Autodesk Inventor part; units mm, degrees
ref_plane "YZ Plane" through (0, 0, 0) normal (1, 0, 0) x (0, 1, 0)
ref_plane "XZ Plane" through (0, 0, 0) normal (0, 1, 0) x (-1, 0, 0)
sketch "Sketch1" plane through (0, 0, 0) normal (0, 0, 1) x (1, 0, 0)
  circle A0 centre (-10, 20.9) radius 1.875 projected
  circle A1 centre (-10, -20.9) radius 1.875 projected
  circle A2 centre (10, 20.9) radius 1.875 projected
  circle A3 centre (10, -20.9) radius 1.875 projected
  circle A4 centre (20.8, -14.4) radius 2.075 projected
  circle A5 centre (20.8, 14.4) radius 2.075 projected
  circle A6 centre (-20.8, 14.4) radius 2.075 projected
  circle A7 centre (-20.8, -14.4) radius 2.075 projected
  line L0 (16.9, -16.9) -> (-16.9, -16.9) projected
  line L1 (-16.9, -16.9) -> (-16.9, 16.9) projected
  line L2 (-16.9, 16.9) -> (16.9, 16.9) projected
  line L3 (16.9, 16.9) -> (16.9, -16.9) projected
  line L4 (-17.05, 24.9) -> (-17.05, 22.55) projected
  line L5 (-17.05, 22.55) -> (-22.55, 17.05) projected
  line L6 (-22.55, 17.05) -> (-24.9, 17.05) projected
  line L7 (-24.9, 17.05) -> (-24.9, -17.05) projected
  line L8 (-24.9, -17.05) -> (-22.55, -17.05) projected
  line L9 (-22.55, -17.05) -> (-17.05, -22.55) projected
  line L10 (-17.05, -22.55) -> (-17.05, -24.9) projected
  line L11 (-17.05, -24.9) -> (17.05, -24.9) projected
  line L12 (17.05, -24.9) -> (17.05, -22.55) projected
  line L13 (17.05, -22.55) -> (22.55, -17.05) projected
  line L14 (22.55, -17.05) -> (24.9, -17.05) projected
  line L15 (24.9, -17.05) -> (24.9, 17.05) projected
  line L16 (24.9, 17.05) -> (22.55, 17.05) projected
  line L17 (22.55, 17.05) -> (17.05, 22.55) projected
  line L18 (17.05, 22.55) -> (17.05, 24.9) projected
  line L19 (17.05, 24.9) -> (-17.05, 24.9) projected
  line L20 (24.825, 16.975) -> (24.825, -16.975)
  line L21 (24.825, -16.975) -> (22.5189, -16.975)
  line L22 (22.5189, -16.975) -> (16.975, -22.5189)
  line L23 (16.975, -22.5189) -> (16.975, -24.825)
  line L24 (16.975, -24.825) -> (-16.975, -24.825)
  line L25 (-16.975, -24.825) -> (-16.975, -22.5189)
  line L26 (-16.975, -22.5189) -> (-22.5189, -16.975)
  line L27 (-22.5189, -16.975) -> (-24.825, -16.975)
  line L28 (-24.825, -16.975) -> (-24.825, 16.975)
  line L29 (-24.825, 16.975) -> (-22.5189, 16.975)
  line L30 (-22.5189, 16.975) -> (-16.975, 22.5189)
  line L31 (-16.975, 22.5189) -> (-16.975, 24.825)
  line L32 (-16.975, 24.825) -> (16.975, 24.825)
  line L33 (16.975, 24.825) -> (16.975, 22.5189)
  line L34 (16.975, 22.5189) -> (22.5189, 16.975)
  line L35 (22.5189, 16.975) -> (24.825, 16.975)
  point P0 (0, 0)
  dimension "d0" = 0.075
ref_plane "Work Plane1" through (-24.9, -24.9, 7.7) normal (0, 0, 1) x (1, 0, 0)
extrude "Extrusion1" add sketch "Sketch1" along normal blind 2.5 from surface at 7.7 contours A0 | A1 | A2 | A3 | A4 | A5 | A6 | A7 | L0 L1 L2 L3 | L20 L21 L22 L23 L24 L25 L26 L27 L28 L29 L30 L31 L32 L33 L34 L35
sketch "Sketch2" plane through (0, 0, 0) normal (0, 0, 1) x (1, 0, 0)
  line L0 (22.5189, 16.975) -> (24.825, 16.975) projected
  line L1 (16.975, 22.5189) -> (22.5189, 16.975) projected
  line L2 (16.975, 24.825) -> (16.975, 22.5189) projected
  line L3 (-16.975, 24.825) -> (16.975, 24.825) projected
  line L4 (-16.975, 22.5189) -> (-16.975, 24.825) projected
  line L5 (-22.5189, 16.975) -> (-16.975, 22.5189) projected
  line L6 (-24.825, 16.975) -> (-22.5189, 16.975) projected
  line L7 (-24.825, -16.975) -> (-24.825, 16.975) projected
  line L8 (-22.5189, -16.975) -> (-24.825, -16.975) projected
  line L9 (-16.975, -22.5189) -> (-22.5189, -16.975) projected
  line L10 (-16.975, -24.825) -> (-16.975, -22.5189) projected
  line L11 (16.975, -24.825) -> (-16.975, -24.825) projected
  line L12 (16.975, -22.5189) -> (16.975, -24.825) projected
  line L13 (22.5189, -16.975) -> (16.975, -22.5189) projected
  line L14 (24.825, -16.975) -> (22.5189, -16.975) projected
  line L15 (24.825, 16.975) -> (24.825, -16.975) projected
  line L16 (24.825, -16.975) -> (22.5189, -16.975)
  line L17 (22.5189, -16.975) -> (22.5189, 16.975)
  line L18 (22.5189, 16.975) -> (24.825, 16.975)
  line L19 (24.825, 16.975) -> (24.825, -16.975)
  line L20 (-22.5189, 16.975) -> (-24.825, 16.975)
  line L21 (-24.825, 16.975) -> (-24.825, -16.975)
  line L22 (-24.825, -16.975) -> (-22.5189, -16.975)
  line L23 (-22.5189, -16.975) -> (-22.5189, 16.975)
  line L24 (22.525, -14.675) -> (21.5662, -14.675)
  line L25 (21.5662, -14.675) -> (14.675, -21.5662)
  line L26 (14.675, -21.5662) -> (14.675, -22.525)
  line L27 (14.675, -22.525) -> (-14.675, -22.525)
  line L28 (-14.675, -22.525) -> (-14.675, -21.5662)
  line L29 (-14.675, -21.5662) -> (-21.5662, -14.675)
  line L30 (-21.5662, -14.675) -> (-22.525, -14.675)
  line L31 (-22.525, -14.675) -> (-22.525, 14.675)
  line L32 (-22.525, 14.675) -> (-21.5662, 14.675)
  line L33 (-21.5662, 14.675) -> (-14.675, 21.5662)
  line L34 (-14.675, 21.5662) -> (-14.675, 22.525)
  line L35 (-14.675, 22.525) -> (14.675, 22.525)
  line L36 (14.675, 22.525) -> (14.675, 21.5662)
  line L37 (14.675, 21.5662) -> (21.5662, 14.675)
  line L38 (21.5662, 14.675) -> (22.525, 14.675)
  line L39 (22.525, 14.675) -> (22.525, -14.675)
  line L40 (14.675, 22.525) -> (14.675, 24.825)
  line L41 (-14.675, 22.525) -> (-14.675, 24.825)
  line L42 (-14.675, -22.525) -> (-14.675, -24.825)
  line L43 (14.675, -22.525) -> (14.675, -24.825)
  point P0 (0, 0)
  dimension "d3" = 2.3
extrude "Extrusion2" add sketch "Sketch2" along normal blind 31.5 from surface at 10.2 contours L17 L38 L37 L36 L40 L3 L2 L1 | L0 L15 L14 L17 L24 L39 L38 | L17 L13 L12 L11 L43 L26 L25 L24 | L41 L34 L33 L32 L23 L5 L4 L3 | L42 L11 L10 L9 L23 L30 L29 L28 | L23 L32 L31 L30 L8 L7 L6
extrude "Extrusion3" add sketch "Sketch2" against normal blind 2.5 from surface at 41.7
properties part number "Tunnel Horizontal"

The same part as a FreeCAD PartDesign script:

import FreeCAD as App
import Part
import Sketcher

V = App.Vector
Q = App.Units.Quantity

doc = App.newDocument("Part")
body = doc.addObject("PartDesign::Body", "Body")

# Sketch on XY plane
sketch1 = body.newObject("Sketcher::SketchObject", "Sketch")
sketch1.AttachmentSupport = (doc.getObject("XY_Plane"), [""])
sketch1.MapMode = "FlatFace"
sketch1.AttachmentOffset = App.Placement(V(0, 0, 7.7), App.Rotation())
sketch1.addGeometry(Part.LineSegment(V(24.8, -17, 0), V(24.8, 17, 0)), False)
sketch1.addGeometry(Part.LineSegment(V(24.8, 17, 0), V(22.5, 17, 0)), False)
sketch1.addGeometry(Part.LineSegment(V(22.5, 17, 0), V(17, 22.5, 0)), False)
sketch1.addGeometry(Part.LineSegment(V(17, 22.5, 0), V(17, 24.8, 0)), False)
sketch1.addGeometry(Part.LineSegment(V(17, 24.8, 0), V(-17, 24.8, 0)), False)
sketch1.addGeometry(Part.LineSegment(V(-17, 24.8, 0), V(-17, 22.5, 0)), False)
sketch1.addGeometry(Part.LineSegment(V(-17, 22.5, 0), V(-22.5, 17, 0)), False)
sketch1.addGeometry(Part.LineSegment(V(-22.5, 17, 0), V(-24.8, 17, 0)), False)
sketch1.addGeometry(Part.LineSegment(V(-24.8, 17, 0), V(-24.8, -17, 0)), False)
sketch1.addGeometry(Part.LineSegment(V(-24.8, -17, 0), V(-22.5, -17, 0)), False)
sketch1.addGeometry(Part.LineSegment(V(-22.5, -17, 0), V(-17, -22.5, 0)), False)
sketch1.addGeometry(Part.LineSegment(V(-17, -22.5, 0), V(-17, -24.8, 0)), False)
sketch1.addGeometry(Part.LineSegment(V(-17, -24.8, 0), V(17, -24.8, 0)), False)
sketch1.addGeometry(Part.LineSegment(V(17, -24.8, 0), V(17, -22.5, 0)), False)
sketch1.addGeometry(Part.LineSegment(V(17, -22.5, 0), V(22.5, -17, 0)), False)
sketch1.addGeometry(Part.LineSegment(V(22.5, -17, 0), V(24.8, -17, 0)), False)
sketch1.addConstraint(Sketcher.Constraint("Coincident", 0, 2, 1, 1))
sketch1.addConstraint(Sketcher.Constraint("Coincident", 1, 2, 2, 1))
sketch1.addConstraint(Sketcher.Constraint("Coincident", 2, 2, 3, 1))
sketch1.addConstraint(Sketcher.Constraint("Coincident", 3, 2, 4, 1))
sketch1.addConstraint(Sketcher.Constraint("Coincident", 4, 2, 5, 1))
sketch1.addConstraint(Sketcher.Constraint("Coincident", 5, 2, 6, 1))
sketch1.addConstraint(Sketcher.Constraint("Coincident", 6, 2, 7, 1))
sketch1.addConstraint(Sketcher.Constraint("Coincident", 7, 2, 8, 1))
sketch1.addConstraint(Sketcher.Constraint("Coincident", 8, 2, 9, 1))
sketch1.addConstraint(Sketcher.Constraint("Coincident", 9, 2, 10, 1))
sketch1.addConstraint(Sketcher.Constraint("Coincident", 10, 2, 11, 1))
sketch1.addConstraint(Sketcher.Constraint("Coincident", 11, 2, 12, 1))
sketch1.addConstraint(Sketcher.Constraint("Coincident", 12, 2, 13, 1))
sketch1.addConstraint(Sketcher.Constraint("Coincident", 13, 2, 14, 1))
sketch1.addConstraint(Sketcher.Constraint("Coincident", 14, 2, 15, 1))
sketch1.addConstraint(Sketcher.Constraint("Coincident", 15, 2, 0, 1))
sketch1.addConstraint(Sketcher.Constraint("Vertical", 0))
sketch1.addConstraint(Sketcher.Constraint("Horizontal", 1))
sketch1.addConstraint(Sketcher.Constraint("Vertical", 3))
sketch1.addConstraint(Sketcher.Constraint("Horizontal", 4))
sketch1.addConstraint(Sketcher.Constraint("Vertical", 5))
sketch1.addConstraint(Sketcher.Constraint("Horizontal", 7))
sketch1.addConstraint(Sketcher.Constraint("Vertical", 8))
sketch1.addConstraint(Sketcher.Constraint("Horizontal", 9))
sketch1.addConstraint(Sketcher.Constraint("Vertical", 11))
sketch1.addConstraint(Sketcher.Constraint("Horizontal", 12))
sketch1.addConstraint(Sketcher.Constraint("Vertical", 13))
sketch1.addConstraint(Sketcher.Constraint("Horizontal", 15))
sketch1.addConstraint(Sketcher.Constraint("Symmetric", 0, 2, 8, 2, -1, 1))
sketch1.addConstraint(Sketcher.Constraint("Symmetric", 2, 2, 10, 2, -1, 1))
sketch1.addConstraint(Sketcher.Constraint("Symmetric", 4, 2, 12, 2, -1, 1))
sketch1.addConstraint(Sketcher.Constraint("Symmetric", 6, 2, 14, 2, -1, 1))
sketch1.addConstraint(Sketcher.Constraint("Symmetric", 2, 2, 5, 2, -2))
sketch1.addConstraint(Sketcher.Constraint("Symmetric", 1, 2, 6, 2, -2))
sketch1.addConstraint(Sketcher.Constraint("Perpendicular", 2, 6))
sketch1.addConstraint(Sketcher.Constraint("Perpendicular", 6, 10))
sketch1.addConstraint(Sketcher.Constraint("Perpendicular", 10, 14))
sketch1.addConstraint(Sketcher.Constraint("Equal", 12, 0))
sketch1.addConstraint(Sketcher.Constraint("Equal", 15, 3))
sketch1.addConstraint(Sketcher.Constraint("DistanceX", 4, 2, 4, 1, Q("33.95 mm")))
sketch1.addConstraint(Sketcher.Constraint("DistanceX", 4, 2, 0, 2, Q("41.8 mm")))
sketch1.addConstraint(Sketcher.Constraint("DistanceX", 1, 2, 1, 1, Q("2.306 mm")))
pad1 = body.newObject("PartDesign::Pad", "Pad")
pad1.Profile = sketch1
pad1.Length = 2.5

# Sketch on XY plane
sketch2 = body.newObject("Sketcher::SketchObject", "Sketch001")
sketch2.AttachmentSupport = (doc.getObject("XY_Plane"), [""])
sketch2.MapMode = "FlatFace"
sketch2.AttachmentOffset = App.Placement(V(0, 0, 10.2), App.Rotation())
sketch2.addGeometry(Part.LineSegment(V(21.6, 14.7, 0), V(22.5, 14.7, 0)), False)
sketch2.addGeometry(Part.LineSegment(V(22.5, 14.7, 0), V(22.5, -14.7, 0)), False)
sketch2.addGeometry(Part.LineSegment(V(22.5, -14.7, 0), V(21.6, -14.7, 0)), False)
sketch2.addGeometry(Part.LineSegment(V(21.6, -14.7, 0), V(14.7, -21.6, 0)), False)
sketch2.addGeometry(Part.LineSegment(V(14.7, -21.6, 0), V(14.7, -24.8, 0)), False)
sketch2.addGeometry(Part.LineSegment(V(14.7, -24.8, 0), V(17, -24.8, 0)), False)
sketch2.addGeometry(Part.LineSegment(V(17, -24.8, 0), V(17, -22.5, 0)), False)
sketch2.addGeometry(Part.LineSegment(V(17, -22.5, 0), V(22.5, -17, 0)), False)
sketch2.addGeometry(Part.LineSegment(V(22.5, -17, 0), V(24.8, -17, 0)), False)
sketch2.addGeometry(Part.LineSegment(V(24.8, -17, 0), V(24.8, 17, 0)), False)
sketch2.addGeometry(Part.LineSegment(V(24.8, 17, 0), V(22.5, 17, 0)), False)
sketch2.addGeometry(Part.LineSegment(V(22.5, 17, 0), V(17, 22.5, 0)), False)
sketch2.addGeometry(Part.LineSegment(V(17, 22.5, 0), V(17, 24.8, 0)), False)
sketch2.addGeometry(Part.LineSegment(V(17, 24.8, 0), V(14.7, 24.8, 0)), False)
sketch2.addGeometry(Part.LineSegment(V(14.7, 24.8, 0), V(14.7, 21.6, 0)), False)
sketch2.addGeometry(Part.LineSegment(V(14.7, 21.6, 0), V(21.6, 14.7, 0)), False)
sketch2.addGeometry(Part.LineSegment(V(-14.7, 24.8, 0), V(-17, 24.8, 0)), False)
sketch2.addGeometry(Part.LineSegment(V(-17, 24.8, 0), V(-17, 22.5, 0)), False)
sketch2.addGeometry(Part.LineSegment(V(-17, 22.5, 0), V(-22.5, 17, 0)), False)
sketch2.addGeometry(Part.LineSegment(V(-22.5, 17, 0), V(-24.8, 17, 0)), False)
sketch2.addGeometry(Part.LineSegment(V(-24.8, 17, 0), V(-24.8, -17, 0)), False)
sketch2.addGeometry(Part.LineSegment(V(-24.8, -17, 0), V(-22.5, -17, 0)), False)
sketch2.addGeometry(Part.LineSegment(V(-22.5, -17, 0), V(-17, -22.5, 0)), False)
sketch2.addGeometry(Part.LineSegment(V(-17, -22.5, 0), V(-17, -24.8, 0)), False)
sketch2.addGeometry(Part.LineSegment(V(-17, -24.8, 0), V(-14.7, -24.8, 0)), False)
sketch2.addGeometry(Part.LineSegment(V(-14.7, -24.8, 0), V(-14.7, -21.6, 0)), False)
sketch2.addGeometry(Part.LineSegment(V(-14.7, -21.6, 0), V(-21.6, -14.7, 0)), False)
sketch2.addGeometry(Part.LineSegment(V(-21.6, -14.7, 0), V(-22.5, -14.7, 0)), False)
sketch2.addGeometry(Part.LineSegment(V(-22.5, -14.7, 0), V(-22.5, 14.7, 0)), False)
sketch2.addGeometry(Part.LineSegment(V(-22.5, 14.7, 0), V(-21.6, 14.7, 0)), False)
sketch2.addGeometry(Part.LineSegment(V(-21.6, 14.7, 0), V(-14.7, 21.6, 0)), False)
sketch2.addGeometry(Part.LineSegment(V(-14.7, 21.6, 0), V(-14.7, 24.8, 0)), False)
sketch2.addConstraint(Sketcher.Constraint("Coincident", 0, 2, 1, 1))
sketch2.addConstraint(Sketcher.Constraint("Coincident", 1, 2, 2, 1))
sketch2.addConstraint(Sketcher.Constraint("Coincident", 2, 2, 3, 1))
sketch2.addConstraint(Sketcher.Constraint("Coincident", 3, 2, 4, 1))
sketch2.addConstraint(Sketcher.Constraint("Coincident", 4, 2, 5, 1))
sketch2.addConstraint(Sketcher.Constraint("Coincident", 5, 2, 6, 1))
sketch2.addConstraint(Sketcher.Constraint("Coincident", 6, 2, 7, 1))
sketch2.addConstraint(Sketcher.Constraint("Coincident", 7, 2, 8, 1))
sketch2.addConstraint(Sketcher.Constraint("Coincident", 8, 2, 9, 1))
sketch2.addConstraint(Sketcher.Constraint("Coincident", 9, 2, 10, 1))
sketch2.addConstraint(Sketcher.Constraint("Coincident", 10, 2, 11, 1))
sketch2.addConstraint(Sketcher.Constraint("Coincident", 11, 2, 12, 1))
sketch2.addConstraint(Sketcher.Constraint("Coincident", 12, 2, 13, 1))
sketch2.addConstraint(Sketcher.Constraint("Coincident", 13, 2, 14, 1))
sketch2.addConstraint(Sketcher.Constraint("Coincident", 14, 2, 15, 1))
sketch2.addConstraint(Sketcher.Constraint("Coincident", 15, 2, 0, 1))
sketch2.addConstraint(Sketcher.Constraint("Coincident", 16, 2, 17, 1))
sketch2.addConstraint(Sketcher.Constraint("Coincident", 17, 2, 18, 1))
sketch2.addConstraint(Sketcher.Constraint("Coincident", 18, 2, 19, 1))
sketch2.addConstraint(Sketcher.Constraint("Coincident", 19, 2, 20, 1))
sketch2.addConstraint(Sketcher.Constraint("Coincident", 20, 2, 21, 1))
sketch2.addConstraint(Sketcher.Constraint("Coincident", 21, 2, 22, 1))
sketch2.addConstraint(Sketcher.Constraint("Coincident", 22, 2, 23, 1))
sketch2.addConstraint(Sketcher.Constraint("Coincident", 23, 2, 24, 1))
sketch2.addConstraint(Sketcher.Constraint("Coincident", 24, 2, 25, 1))
sketch2.addConstraint(Sketcher.Constraint("Coincident", 25, 2, 26, 1))
sketch2.addConstraint(Sketcher.Constraint("Coincident", 26, 2, 27, 1))
sketch2.addConstraint(Sketcher.Constraint("Coincident", 27, 2, 28, 1))
sketch2.addConstraint(Sketcher.Constraint("Coincident", 28, 2, 29, 1))
sketch2.addConstraint(Sketcher.Constraint("Coincident", 29, 2, 30, 1))
sketch2.addConstraint(Sketcher.Constraint("Coincident", 30, 2, 31, 1))
sketch2.addConstraint(Sketcher.Constraint("Coincident", 31, 2, 16, 1))
sketch2.addConstraint(Sketcher.Constraint("Horizontal", 0))
sketch2.addConstraint(Sketcher.Constraint("Vertical", 1))
sketch2.addConstraint(Sketcher.Constraint("Horizontal", 2))
sketch2.addConstraint(Sketcher.Constraint("Vertical", 4))
sketch2.addConstraint(Sketcher.Constraint("Horizontal", 5))
sketch2.addConstraint(Sketcher.Constraint("Vertical", 6))
sketch2.addConstraint(Sketcher.Constraint("Horizontal", 8))
sketch2.addConstraint(Sketcher.Constraint("Vertical", 9))
sketch2.addConstraint(Sketcher.Constraint("Horizontal", 10))
sketch2.addConstraint(Sketcher.Constraint("Vertical", 12))
sketch2.addConstraint(Sketcher.Constraint("Horizontal", 13))
sketch2.addConstraint(Sketcher.Constraint("Vertical", 14))
sketch2.addConstraint(Sketcher.Constraint("Horizontal", 16))
sketch2.addConstraint(Sketcher.Constraint("Vertical", 17))
sketch2.addConstraint(Sketcher.Constraint("Horizontal", 19))
sketch2.addConstraint(Sketcher.Constraint("Vertical", 20))
sketch2.addConstraint(Sketcher.Constraint("Horizontal", 21))
sketch2.addConstraint(Sketcher.Constraint("Vertical", 23))
sketch2.addConstraint(Sketcher.Constraint("Horizontal", 24))
sketch2.addConstraint(Sketcher.Constraint("Vertical", 25))
sketch2.addConstraint(Sketcher.Constraint("Horizontal", 27))
sketch2.addConstraint(Sketcher.Constraint("Vertical", 28))
sketch2.addConstraint(Sketcher.Constraint("Horizontal", 29))
sketch2.addConstraint(Sketcher.Constraint("Vertical", 31))
sketch2.addConstraint(Sketcher.Constraint("Symmetric", 5, 2, 16, 2, -1, 1))
sketch2.addConstraint(Sketcher.Constraint("Symmetric", 7, 2, 18, 2, -1, 1))
sketch2.addConstraint(Sketcher.Constraint("Symmetric", 9, 2, 20, 2, -1, 1))
sketch2.addConstraint(Sketcher.Constraint("Symmetric", 11, 2, 22, 2, -1, 1))
sketch2.addConstraint(Sketcher.Constraint("Symmetric", 13, 2, 24, 2, -1, 1))
sketch2.addConstraint(Sketcher.Constraint("Symmetric", 15, 2, 26, 2, -1, 1))
sketch2.addConstraint(Sketcher.Constraint("Symmetric", 1, 2, 28, 2, -1, 1))
sketch2.addConstraint(Sketcher.Constraint("Symmetric", 3, 2, 30, 2, -1, 1))
sketch2.addConstraint(Sketcher.Constraint("Symmetric", 12, 2, 16, 2, -2))
sketch2.addConstraint(Sketcher.Constraint("Symmetric", 10, 2, 18, 2, -2))
sketch2.addConstraint(Sketcher.Constraint("Symmetric", 3, 2, 25, 2, -2))
sketch2.addConstraint(Sketcher.Constraint("Symmetric", 2, 2, 26, 2, -2))
sketch2.addConstraint(Sketcher.Constraint("Parallel", 3, 7))
sketch2.addConstraint(Sketcher.Constraint("Perpendicular", 7, 11))
sketch2.addConstraint(Sketcher.Constraint("Parallel", 11, 15))
sketch2.addConstraint(Sketcher.Constraint("Perpendicular", 15, 18))
sketch2.addConstraint(Sketcher.Constraint("Perpendicular", 18, 22))
sketch2.addConstraint(Sketcher.Constraint("Parallel", 22, 26))
sketch2.addConstraint(Sketcher.Constraint("Perpendicular", 26, 30))
sketch2.addConstraint(Sketcher.Constraint("Equal", 21, 6))
sketch2.addConstraint(Sketcher.Constraint("DistanceX", 5, 1, 5, 2, Q("2.3 mm")))
sketch2.addConstraint(Sketcher.Constraint("DistanceY", 7, 2, 1, 2, Q("2.3 mm")))
sketch2.addConstraint(Sketcher.Constraint("DistanceX", 1, 2, 8, 2, Q("2.3 mm")))
sketch2.addConstraint(Sketcher.Constraint("DistanceY", 1, 2, 1, 1, Q("29.35 mm")))
sketch2.addConstraint(Sketcher.Constraint("DistanceY", 4, 2, 0, 2, Q("39.5 mm")))
sketch2.addConstraint(Sketcher.Constraint("DistanceX", 19, 2, 14, 2, Q("39.5 mm")))
sketch2.addConstraint(Sketcher.Constraint("DistanceX", 8, 1, 8, 2, Q("2.306 mm")))
sketch2.addConstraint(Sketcher.Constraint("DistanceX", 0, 1, 0, 2, Q("0.9588 mm")))
pad2 = body.newObject("PartDesign::Pad", "Pad001")
pad2.Profile = sketch2
pad2.Length = 31.5

# Sketch on XY plane
sketch3 = body.newObject("Sketcher::SketchObject", "Sketch002")
sketch3.AttachmentSupport = (doc.getObject("XY_Plane"), [""])
sketch3.MapMode = "FlatFace"
sketch3.AttachmentOffset = App.Placement(V(0, 0, 41.7), App.Rotation())
sketch3.addGeometry(Part.LineSegment(V(17, 24.8, 0), V(-17, 24.8, 0)), False)
sketch3.addGeometry(Part.LineSegment(V(-17, 24.8, 0), V(-17, 22.5, 0)), False)
sketch3.addGeometry(Part.LineSegment(V(-17, 22.5, 0), V(-22.5, 17, 0)), False)
sketch3.addGeometry(Part.LineSegment(V(-22.5, 17, 0), V(-24.8, 17, 0)), False)
sketch3.addGeometry(Part.LineSegment(V(-24.8, 17, 0), V(-24.8, -17, 0)), False)
sketch3.addGeometry(Part.LineSegment(V(-24.8, -17, 0), V(-22.5, -17, 0)), False)
sketch3.addGeometry(Part.LineSegment(V(-22.5, -17, 0), V(-17, -22.5, 0)), False)
sketch3.addGeometry(Part.LineSegment(V(-17, -22.5, 0), V(-17, -24.8, 0)), False)
sketch3.addGeometry(Part.LineSegment(V(-17, -24.8, 0), V(17, -24.8, 0)), False)
sketch3.addGeometry(Part.LineSegment(V(17, -24.8, 0), V(17, -22.5, 0)), False)
sketch3.addGeometry(Part.LineSegment(V(17, -22.5, 0), V(22.5, -17, 0)), False)
sketch3.addGeometry(Part.LineSegment(V(22.5, -17, 0), V(24.8, -17, 0)), False)
sketch3.addGeometry(Part.LineSegment(V(24.8, -17, 0), V(24.8, 17, 0)), False)
sketch3.addGeometry(Part.LineSegment(V(24.8, 17, 0), V(22.5, 17, 0)), False)
sketch3.addGeometry(Part.LineSegment(V(22.5, 17, 0), V(17, 22.5, 0)), False)
sketch3.addGeometry(Part.LineSegment(V(17, 22.5, 0), V(17, 24.8, 0)), False)
sketch3.addConstraint(Sketcher.Constraint("Coincident", 0, 2, 1, 1))
sketch3.addConstraint(Sketcher.Constraint("Coincident", 1, 2, 2, 1))
sketch3.addConstraint(Sketcher.Constraint("Coincident", 2, 2, 3, 1))
sketch3.addConstraint(Sketcher.Constraint("Coincident", 3, 2, 4, 1))
sketch3.addConstraint(Sketcher.Constraint("Coincident", 4, 2, 5, 1))
sketch3.addConstraint(Sketcher.Constraint("Coincident", 5, 2, 6, 1))
sketch3.addConstraint(Sketcher.Constraint("Coincident", 6, 2, 7, 1))
sketch3.addConstraint(Sketcher.Constraint("Coincident", 7, 2, 8, 1))
sketch3.addConstraint(Sketcher.Constraint("Coincident", 8, 2, 9, 1))
sketch3.addConstraint(Sketcher.Constraint("Coincident", 9, 2, 10, 1))
sketch3.addConstraint(Sketcher.Constraint("Coincident", 10, 2, 11, 1))
sketch3.addConstraint(Sketcher.Constraint("Coincident", 11, 2, 12, 1))
sketch3.addConstraint(Sketcher.Constraint("Coincident", 12, 2, 13, 1))
sketch3.addConstraint(Sketcher.Constraint("Coincident", 13, 2, 14, 1))
sketch3.addConstraint(Sketcher.Constraint("Coincident", 14, 2, 15, 1))
sketch3.addConstraint(Sketcher.Constraint("Coincident", 15, 2, 0, 1))
sketch3.addConstraint(Sketcher.Constraint("Horizontal", 0))
sketch3.addConstraint(Sketcher.Constraint("Vertical", 1))
sketch3.addConstraint(Sketcher.Constraint("Horizontal", 3))
sketch3.addConstraint(Sketcher.Constraint("Vertical", 4))
sketch3.addConstraint(Sketcher.Constraint("Horizontal", 5))
sketch3.addConstraint(Sketcher.Constraint("Vertical", 7))
sketch3.addConstraint(Sketcher.Constraint("Horizontal", 8))
sketch3.addConstraint(Sketcher.Constraint("Vertical", 9))
sketch3.addConstraint(Sketcher.Constraint("Horizontal", 11))
sketch3.addConstraint(Sketcher.Constraint("Vertical", 12))
sketch3.addConstraint(Sketcher.Constraint("Horizontal", 13))
sketch3.addConstraint(Sketcher.Constraint("Vertical", 15))
sketch3.addConstraint(Sketcher.Constraint("Symmetric", 0, 2, 8, 2, -1, 1))
sketch3.addConstraint(Sketcher.Constraint("Symmetric", 2, 2, 10, 2, -1, 1))
sketch3.addConstraint(Sketcher.Constraint("Symmetric", 4, 2, 12, 2, -1, 1))
sketch3.addConstraint(Sketcher.Constraint("Symmetric", 6, 2, 14, 2, -1, 1))
sketch3.addConstraint(Sketcher.Constraint("Symmetric", 6, 2, 9, 2, -2))
sketch3.addConstraint(Sketcher.Constraint("Symmetric", 5, 2, 10, 2, -2))
sketch3.addConstraint(Sketcher.Constraint("Perpendicular", 2, 6))
sketch3.addConstraint(Sketcher.Constraint("Perpendicular", 6, 10))
sketch3.addConstraint(Sketcher.Constraint("Perpendicular", 10, 14))
sketch3.addConstraint(Sketcher.Constraint("Equal", 13, 1))
sketch3.addConstraint(Sketcher.Constraint("Equal", 8, 4))
sketch3.addConstraint(Sketcher.Constraint("DistanceX", 0, 2, 0, 1, Q("33.95 mm")))
sketch3.addConstraint(Sketcher.Constraint("DistanceY", 4, 2, 0, 2, Q("41.8 mm")))
sketch3.addConstraint(Sketcher.Constraint("DistanceX", 3, 2, 3, 1, Q("2.306 mm")))
pad3 = body.newObject("PartDesign::Pad", "Pad002")
pad3.Profile = sketch3
pad3.Length = 2.5
pad3.Reversed = True

doc.recompute()
